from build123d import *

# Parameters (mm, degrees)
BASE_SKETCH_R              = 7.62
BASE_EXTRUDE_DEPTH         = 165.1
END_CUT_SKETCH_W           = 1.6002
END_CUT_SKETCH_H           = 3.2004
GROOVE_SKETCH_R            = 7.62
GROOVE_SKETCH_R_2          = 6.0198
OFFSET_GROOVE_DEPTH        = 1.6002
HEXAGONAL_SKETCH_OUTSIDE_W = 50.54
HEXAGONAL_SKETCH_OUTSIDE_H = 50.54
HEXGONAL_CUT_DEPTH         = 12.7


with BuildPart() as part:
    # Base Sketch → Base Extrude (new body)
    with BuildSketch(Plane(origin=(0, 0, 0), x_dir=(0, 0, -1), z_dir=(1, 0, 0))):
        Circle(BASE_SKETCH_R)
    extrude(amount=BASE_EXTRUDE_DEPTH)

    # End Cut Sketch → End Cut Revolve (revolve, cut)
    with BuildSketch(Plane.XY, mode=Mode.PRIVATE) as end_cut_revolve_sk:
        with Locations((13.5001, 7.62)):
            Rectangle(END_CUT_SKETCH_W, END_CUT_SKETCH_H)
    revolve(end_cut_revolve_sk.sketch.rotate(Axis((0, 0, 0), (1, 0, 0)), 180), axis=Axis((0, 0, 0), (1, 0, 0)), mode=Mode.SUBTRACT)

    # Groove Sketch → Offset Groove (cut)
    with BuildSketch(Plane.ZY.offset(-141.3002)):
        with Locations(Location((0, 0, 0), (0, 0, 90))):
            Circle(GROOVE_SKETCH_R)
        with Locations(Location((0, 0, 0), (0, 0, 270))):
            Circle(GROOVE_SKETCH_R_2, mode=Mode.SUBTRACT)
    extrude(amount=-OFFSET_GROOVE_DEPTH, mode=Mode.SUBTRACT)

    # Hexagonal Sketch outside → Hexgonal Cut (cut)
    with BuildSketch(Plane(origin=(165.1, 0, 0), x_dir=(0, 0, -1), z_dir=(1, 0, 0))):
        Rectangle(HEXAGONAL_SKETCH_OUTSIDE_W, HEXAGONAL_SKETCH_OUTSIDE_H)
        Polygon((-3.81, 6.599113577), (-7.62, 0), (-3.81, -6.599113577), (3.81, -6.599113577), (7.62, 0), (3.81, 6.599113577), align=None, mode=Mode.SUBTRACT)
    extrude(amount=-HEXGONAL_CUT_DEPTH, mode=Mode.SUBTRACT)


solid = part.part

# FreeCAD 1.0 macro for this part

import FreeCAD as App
import Part
import Sketcher
from FreeCAD import Vector
Q = App.Units.Quantity


def add_polygon(sketch, points):
    """Adds a closed chain of lines whose ends are joined by coincident constraints."""
    first, n = sketch.GeometryCount, len(points)
    for a, b in zip(points, points[1:] + points[:1]):
        sketch.addGeometry(Part.LineSegment(App.Vector(*a, 0), App.Vector(*b, 0)), False)
    for i in range(n):
        sketch.addConstraint(Sketcher.Constraint("Coincident", first + i, 2, first + (i + 1) % n, 1))

doc = App.newDocument("Part")
params = doc.addObject("Spreadsheet::Sheet", "Params")
for row, (alias, value) in enumerate([
    ("sketch1_diameter", "0.6 in"),
    ("pad1_length", "6.5 in"),
    ("sketch2_width", "0.063 in"),
    ("sketch2_height", "0.126 in"),
    ("groove_angle", "360 deg"),
    ("sketch3_diameter", "0.6 in"),
    ("sketch3_diameter2", "0.474 in"),
    ("pocket1_length", "0.063 in"),
    ("sketch4_height", "0.3 in"),
    ("sketch4_length", "0.3 in"),
    ("pocket2_length", "0.5 in"),
], start=1):
    params.set(f"A{row}", alias)
    params.set(f"B{row}", "=" + value)
    params.setAlias(f"B{row}", alias)

body = doc.addObject("PartDesign::Body", "Body")

sketch1 = body.newObject("Sketcher::SketchObject", "Sketch")
sketch1.AttachmentSupport = (doc.getObject("YZ_Plane"), [""])
sketch1.MapMode = "FlatFace"
sketch1.addGeometry(Part.Circle(Vector(0, 0, 0), Vector(0, 0, 1), 8), False)
sketch1.addConstraint(Sketcher.Constraint("Coincident", 0, 3, -1, 1))
sketch1.addConstraint(Sketcher.Constraint("Diameter", 0, Q("0.6 in")))
sketch1.setExpression("Constraints[1]", "Params.sketch1_diameter")
pad1 = body.newObject("PartDesign::Pad", "Pad")
pad1.Profile = sketch1
pad1.setExpression("Length", "Params.pad1_length")

sketch2 = body.newObject("Sketcher::SketchObject", "Sketch001")
sketch2.AttachmentSupport = (doc.getObject("XY_Plane"), [""])
sketch2.MapMode = "FlatFace"
add_polygon(sketch2, [(12.7, 9.2), (12.7, 6), (14.3, 6), (14.3, 9.2)])
sketch2.addConstraint(Sketcher.Constraint("Vertical", 0))
sketch2.addConstraint(Sketcher.Constraint("Horizontal", 1))
sketch2.addConstraint(Sketcher.Constraint("Vertical", 2))
sketch2.addConstraint(Sketcher.Constraint("Horizontal", 3))
sketch2.addConstraint(Sketcher.Constraint("DistanceX", -1, 1, 0, 2, Q("0.5 in")))
sketch2.addConstraint(Sketcher.Constraint("DistanceX", 1, 1, 1, 2, Q("0.063 in")))
sketch2.addConstraint(Sketcher.Constraint("DistanceY", 0, 2, 0, 1, Q("0.126 in")))
sketch2.addConstraint(Sketcher.Constraint("DistanceY", -1, 1, 0, 2, Q("0.237 in")))
sketch2.setExpression("Constraints[9]", "Params.sketch2_width")
sketch2.setExpression("Constraints[10]", "Params.sketch2_height")
groove = body.newObject("PartDesign::Groove", "Groove")
groove.Profile = sketch2
groove.ReferenceAxis = (sketch2, ["H_Axis"])
groove.setExpression("Angle", "Params.groove_angle")

sketch3 = body.newObject("Sketcher::SketchObject", "Sketch002")
sketch3.AttachmentSupport = (doc.getObject("YZ_Plane"), [""])
sketch3.MapMode = "FlatFace"
sketch3.AttachmentOffset = App.Placement(Vector(0, 0, 5.563 * 25.4), App.Rotation())
sketch3.addGeometry(Part.Circle(Vector(0, 0, 0), Vector(0, 0, 1), 8), False)
sketch3.addGeometry(Part.Circle(Vector(0, 0, 0), Vector(0, 0, 1), 6), False)
sketch3.addConstraint(Sketcher.Constraint("Coincident", 0, 3, -1, 1))
sketch3.addConstraint(Sketcher.Constraint("Coincident", 1, 3, -1, 1))
sketch3.addConstraint(Sketcher.Constraint("Diameter", 0, Q("0.6 in")))
sketch3.addConstraint(Sketcher.Constraint("Diameter", 1, Q("0.474 in")))
sketch3.setExpression("Constraints[2]", "Params.sketch3_diameter")
sketch3.setExpression("Constraints[3]", "Params.sketch3_diameter2")
pocket1 = body.newObject("PartDesign::Pocket", "Pocket")
pocket1.Profile = sketch3
pocket1.setExpression("Length", "Params.pocket1_length")
pocket1.Reversed = True

sketch4 = body.newObject("Sketcher::SketchObject", "Sketch003")
sketch4.AttachmentSupport = (doc.getObject("YZ_Plane"), [""])
sketch4.MapMode = "FlatFace"
sketch4.AttachmentOffset = App.Placement(Vector(0, 0, 6.5 * 25.4), App.Rotation())
add_polygon(sketch4, [(25, 25), (-25, 25), (-25, -25), (25, -25)])
add_polygon(sketch4, [(0, 8), (7, 4), (7, -4), (0, -8), (-7, -4), (-7, 4)])
sketch4.addConstraint(Sketcher.Constraint("Horizontal", 0))
sketch4.addConstraint(Sketcher.Constraint("Vertical", 1))
sketch4.addConstraint(Sketcher.Constraint("Horizontal", 2))
sketch4.addConstraint(Sketcher.Constraint("Vertical", 3))
sketch4.addConstraint(Sketcher.Constraint("Vertical", 5))
sketch4.addConstraint(Sketcher.Constraint("Vertical", 8))
sketch4.addConstraint(Sketcher.Constraint("Symmetric", 0, 2, 2, 2, -1, 1))
sketch4.addConstraint(Sketcher.Constraint("Symmetric", 4, 2, 7, 2, -1, 1))
sketch4.addConstraint(Sketcher.Constraint("Symmetric", 6, 2, 9, 2, -1, 1))
sketch4.addConstraint(Sketcher.Constraint("PointOnObject", 6, 2, -2))
sketch4.addConstraint(Sketcher.Constraint("Parallel", 6, 9))
sketch4.addConstraint(Sketcher.Constraint("Horizontal", 5, 2, 7, 2))
sketch4.addConstraint(Sketcher.Constraint("Equal", 2, 1))
sketch4.addConstraint(Sketcher.Constraint("DistanceY", 5, 2, 5, 1, Q("0.3 in")))
sketch4.addConstraint(Sketcher.Constraint("Angle", 4, Q("-30 deg")))
sketch4.addConstraint(Sketcher.Constraint("Distance", 4, Q("0.3 in")))
sketch4.addConstraint(Sketcher.Constraint("DistanceX", 0, 2, 0, 1, 50.54))
sketch4.setExpression("Constraints[23]", "Params.sketch4_height")
sketch4.setExpression("Constraints[25]", "Params.sketch4_length")
pocket2 = body.newObject("PartDesign::Pocket", "Pocket001")
pocket2.Profile = sketch4
pocket2.setExpression("Length", "Params.pocket2_length")

doc.recompute()
